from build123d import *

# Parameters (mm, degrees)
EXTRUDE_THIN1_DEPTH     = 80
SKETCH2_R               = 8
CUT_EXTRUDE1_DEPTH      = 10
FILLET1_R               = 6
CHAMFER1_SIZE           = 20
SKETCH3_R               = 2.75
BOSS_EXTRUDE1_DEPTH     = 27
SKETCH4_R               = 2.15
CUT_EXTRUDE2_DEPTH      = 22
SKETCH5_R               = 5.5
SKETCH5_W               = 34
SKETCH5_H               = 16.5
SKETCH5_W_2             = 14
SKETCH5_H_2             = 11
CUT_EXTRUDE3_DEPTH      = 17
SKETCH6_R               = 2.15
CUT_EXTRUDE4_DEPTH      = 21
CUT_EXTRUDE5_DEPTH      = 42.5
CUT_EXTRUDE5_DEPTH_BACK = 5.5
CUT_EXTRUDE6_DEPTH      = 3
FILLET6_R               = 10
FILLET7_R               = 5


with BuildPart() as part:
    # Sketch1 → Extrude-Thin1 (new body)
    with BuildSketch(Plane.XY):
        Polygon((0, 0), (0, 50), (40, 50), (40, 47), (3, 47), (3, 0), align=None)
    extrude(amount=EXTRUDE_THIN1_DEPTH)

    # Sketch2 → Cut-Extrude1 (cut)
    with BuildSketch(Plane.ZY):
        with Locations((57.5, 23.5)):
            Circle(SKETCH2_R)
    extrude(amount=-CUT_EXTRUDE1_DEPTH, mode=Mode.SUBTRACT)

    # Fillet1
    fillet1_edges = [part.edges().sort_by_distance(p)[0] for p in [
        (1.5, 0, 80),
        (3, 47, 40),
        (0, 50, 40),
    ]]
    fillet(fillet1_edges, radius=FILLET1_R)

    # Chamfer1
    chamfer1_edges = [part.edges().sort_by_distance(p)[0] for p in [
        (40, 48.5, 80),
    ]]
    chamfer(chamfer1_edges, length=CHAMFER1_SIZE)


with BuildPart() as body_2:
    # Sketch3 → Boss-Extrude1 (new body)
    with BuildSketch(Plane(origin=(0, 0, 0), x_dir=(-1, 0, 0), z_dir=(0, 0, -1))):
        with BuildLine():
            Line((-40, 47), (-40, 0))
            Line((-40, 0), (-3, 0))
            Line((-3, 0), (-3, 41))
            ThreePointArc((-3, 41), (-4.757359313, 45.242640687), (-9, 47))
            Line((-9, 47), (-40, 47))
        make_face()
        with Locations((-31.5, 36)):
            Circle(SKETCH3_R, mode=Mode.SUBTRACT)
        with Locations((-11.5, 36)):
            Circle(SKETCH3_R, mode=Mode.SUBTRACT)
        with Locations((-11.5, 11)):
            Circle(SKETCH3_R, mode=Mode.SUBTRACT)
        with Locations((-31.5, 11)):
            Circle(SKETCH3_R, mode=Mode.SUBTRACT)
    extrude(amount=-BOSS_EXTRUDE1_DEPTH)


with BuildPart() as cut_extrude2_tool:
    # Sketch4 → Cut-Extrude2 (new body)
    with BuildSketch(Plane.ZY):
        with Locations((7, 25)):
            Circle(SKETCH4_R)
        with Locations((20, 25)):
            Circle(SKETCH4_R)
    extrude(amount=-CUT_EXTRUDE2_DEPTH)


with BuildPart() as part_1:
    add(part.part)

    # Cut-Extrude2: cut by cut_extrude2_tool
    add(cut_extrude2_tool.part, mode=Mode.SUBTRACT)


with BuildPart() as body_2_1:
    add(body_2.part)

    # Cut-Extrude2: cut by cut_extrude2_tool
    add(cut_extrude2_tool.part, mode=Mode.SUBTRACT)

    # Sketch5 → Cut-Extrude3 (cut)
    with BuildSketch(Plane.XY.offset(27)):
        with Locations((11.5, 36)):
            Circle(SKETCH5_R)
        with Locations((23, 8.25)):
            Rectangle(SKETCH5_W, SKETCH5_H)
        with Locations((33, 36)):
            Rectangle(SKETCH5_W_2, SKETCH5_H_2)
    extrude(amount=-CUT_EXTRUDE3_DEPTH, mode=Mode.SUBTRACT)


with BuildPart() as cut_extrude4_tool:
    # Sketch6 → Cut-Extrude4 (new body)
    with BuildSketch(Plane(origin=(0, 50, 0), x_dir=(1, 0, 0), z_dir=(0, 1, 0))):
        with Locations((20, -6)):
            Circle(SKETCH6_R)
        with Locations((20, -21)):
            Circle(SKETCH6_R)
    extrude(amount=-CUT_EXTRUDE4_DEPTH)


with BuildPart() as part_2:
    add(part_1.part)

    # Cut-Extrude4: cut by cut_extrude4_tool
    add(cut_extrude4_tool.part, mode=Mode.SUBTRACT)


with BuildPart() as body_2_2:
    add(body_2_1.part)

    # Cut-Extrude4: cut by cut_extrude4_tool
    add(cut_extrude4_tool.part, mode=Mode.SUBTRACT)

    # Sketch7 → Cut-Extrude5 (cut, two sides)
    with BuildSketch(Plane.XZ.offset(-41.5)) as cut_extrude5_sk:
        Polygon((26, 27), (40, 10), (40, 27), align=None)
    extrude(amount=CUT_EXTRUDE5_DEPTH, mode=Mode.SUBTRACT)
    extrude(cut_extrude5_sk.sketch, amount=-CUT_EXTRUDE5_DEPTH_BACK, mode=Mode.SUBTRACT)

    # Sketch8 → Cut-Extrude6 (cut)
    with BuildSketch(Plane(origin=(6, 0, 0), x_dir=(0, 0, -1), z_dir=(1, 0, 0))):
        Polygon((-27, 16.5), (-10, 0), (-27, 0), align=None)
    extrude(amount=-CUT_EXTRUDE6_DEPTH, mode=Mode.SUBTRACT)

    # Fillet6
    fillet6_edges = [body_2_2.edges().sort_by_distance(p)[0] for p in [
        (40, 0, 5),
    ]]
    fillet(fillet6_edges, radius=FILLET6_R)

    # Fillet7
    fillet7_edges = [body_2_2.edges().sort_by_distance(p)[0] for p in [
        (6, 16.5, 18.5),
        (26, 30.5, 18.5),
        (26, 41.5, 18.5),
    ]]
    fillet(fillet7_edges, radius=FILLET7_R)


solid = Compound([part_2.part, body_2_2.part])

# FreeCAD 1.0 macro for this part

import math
import FreeCAD as App
import Part
import Sketcher
from FreeCAD import Vector
Q = App.Units.Quantity


def edges_at(feature, points):
    """Names of the edges that pass closest to the given points."""
    edges = feature.Shape.Edges
    near = lambda p: min(range(len(edges)), key=lambda i: edges[i].distToShape(Part.Vertex(*p))[0])
    return sorted({f"Edge{near(p) + 1}" for p in points})


def add_polygon(sketch, points):
    """Adds a closed chain of lines whose ends are joined by coincident constraints."""
    first, n = sketch.GeometryCount, len(points)
    for a, b in zip(points, points[1:] + points[:1]):
        sketch.addGeometry(Part.LineSegment(App.Vector(*a, 0), App.Vector(*b, 0)), False)
    for i in range(n):
        sketch.addConstraint(Sketcher.Constraint("Coincident", first + i, 2, first + (i + 1) % n, 1))

doc = App.newDocument("Part")
params = doc.addObject("Spreadsheet::Sheet", "Params")
for row, (alias, value) in enumerate([
    ("sketch1_width", "3 mm"),
    ("sketch1_width2", "37 mm"),
    ("sketch1_height", "50 mm"),
    ("pad1_length", "80 mm"),
    ("sketch2_diameter", "16 mm"),
    ("pocket1_length", "10 mm"),
    ("fillet_radius", "6 mm"),
    ("chamfer_size", "20 mm"),
    ("sketch3_radius", "6 mm"),
    ("sketch3_diameter", "5.5 mm"),
    ("sketch3_width", "37 mm"),
    ("sketch3_height", "47 mm"),
    ("pad2_length", "27 mm"),
    ("sketch4_diameter", "4.3 mm"),
    ("pad3_length", "22 mm"),
    ("sketch5_diameter", "11 mm"),
    ("sketch5_width", "34 mm"),
    ("sketch5_width2", "14 mm"),
    ("sketch5_height", "11 mm"),
    ("sketch5_height2", "16.5 mm"),
    ("pocket2_length", "17 mm"),
    ("sketch6_diameter", "4.3 mm"),
    ("pad4_length", "21 mm"),
    ("sketch7_width", "14 mm"),
    ("sketch7_height", "17 mm"),
    ("sketch8_height", "17 mm"),
    ("sketch8_width", "16.5 mm"),
    ("pocket4_length", "3 mm"),
    ("fillet2_radius", "10 mm"),
    ("fillet3_radius", "5 mm"),
], start=1):
    params.set(f"A{row}", alias)
    params.set(f"B{row}", "=" + value)
    params.setAlias(f"B{row}", alias)

body = doc.addObject("PartDesign::Body", "Body")

sketch1 = body.newObject("Sketcher::SketchObject", "Sketch")
sketch1.AttachmentSupport = (doc.getObject("XY_Plane"), [""])
sketch1.MapMode = "FlatFace"
add_polygon(sketch1, [(0, 50), (0, 0), (3, 0), (3, 47), (40, 47), (40, 50)])
sketch1.addConstraint(Sketcher.Constraint("Vertical", 0))
sketch1.addConstraint(Sketcher.Constraint("Horizontal", 1))
sketch1.addConstraint(Sketcher.Constraint("Vertical", 2))
sketch1.addConstraint(Sketcher.Constraint("Horizontal", 3))
sketch1.addConstraint(Sketcher.Constraint("Vertical", 4))
sketch1.addConstraint(Sketcher.Constraint("Horizontal", 5))
sketch1.addConstraint(Sketcher.Constraint("Coincident", 0, 2, -1, 1))
sketch1.addConstraint(Sketcher.Constraint("Equal", 1, 4))
sketch1.addConstraint(Sketcher.Constraint("DistanceX", 1, 1, 1, 2, Q("3 mm")))
sketch1.addConstraint(Sketcher.Constraint("DistanceX", 3, 1, 3, 2, Q("37 mm")))
sketch1.addConstraint(Sketcher.Constraint("DistanceY", 0, 2, 0, 1, Q("50 mm")))
sketch1.setExpression("Constraints[14]", "Params.sketch1_width")
sketch1.setExpression("Constraints[15]", "Params.sketch1_width2")
sketch1.setExpression("Constraints[16]", "Params.sketch1_height")
pad1 = body.newObject("PartDesign::Pad", "Pad")
pad1.Profile = sketch1
pad1.setExpression("Length", "Params.pad1_length")

sketch2 = body.newObject("Sketcher::SketchObject", "Sketch001")
sketch2.AttachmentSupport = (doc.getObject("YZ_Plane"), [""])
sketch2.MapMode = "FlatFace"
sketch2.addGeometry(Part.Circle(Vector(24, 58, 0), Vector(0, 0, 1), 8), False)
sketch2.addConstraint(Sketcher.Constraint("Diameter", 0, Q("16 mm")))
sketch2.addConstraint(Sketcher.Constraint("DistanceX", -1, 1, 0, 3, Q("23.5 mm")))
sketch2.addConstraint(Sketcher.Constraint("DistanceY", -1, 1, 0, 3, Q("57.5 mm")))
sketch2.setExpression("Constraints[0]", "Params.sketch2_diameter")
pocket1 = body.newObject("PartDesign::Pocket", "Pocket")
pocket1.Profile = sketch2
pocket1.setExpression("Length", "Params.pocket1_length")
pocket1.Reversed = True
doc.recompute()

fillet = body.newObject("PartDesign::Fillet", "Fillet")
fillet.Base = (pocket1, edges_at(pocket1, [(1.5, 0, 80), (3, 47, 40), (0, 50, 40)]))
fillet.setExpression("Radius", "Params.fillet_radius")
doc.recompute()

chamfer = body.newObject("PartDesign::Chamfer", "Chamfer")
chamfer.Base = (fillet, edges_at(fillet, [(40, 48.5, 80)]))
chamfer.setExpression("Size", "Params.chamfer_size")
body2 = doc.addObject("PartDesign::Body", "Body001")

sketch3 = body2.newObject("Sketcher::SketchObject", "Sketch002")
sketch3.AttachmentSupport = (doc.getObject("XY_Plane001"), [""])
sketch3.MapMode = "FlatFace"
sketch3.addGeometry(Part.LineSegment(Vector(40, 47, 0), Vector(40, 0, 0)), False)
sketch3.addGeometry(Part.LineSegment(Vector(40, 0, 0), Vector(3, 0, 0)), False)
sketch3.addGeometry(Part.LineSegment(Vector(3, 0, 0), Vector(3, 41, 0)), False)
sketch3.addGeometry(Part.ArcOfCircle(Part.Circle(Vector(9, 41, 0), Vector(0, 0, 1), 6), math.radians(90), math.radians(180)), False)
sketch3.addGeometry(Part.LineSegment(Vector(9, 47, 0), Vector(40, 47, 0)), False)
sketch3.addGeometry(Part.Circle(Vector(31.5, 11, 0), Vector(0, 0, 1), 2.8), False)
sketch3.addGeometry(Part.Circle(Vector(11.5, 11, 0), Vector(0, 0, 1), 2.8), False)
sketch3.addGeometry(Part.Circle(Vector(31.5, 36, 0), Vector(0, 0, 1), 2.8), False)
sketch3.addGeometry(Part.Circle(Vector(11.5, 36, 0), Vector(0, 0, 1), 2.8), False)
sketch3.addConstraint(Sketcher.Constraint("Coincident", 0, 2, 1, 1))
sketch3.addConstraint(Sketcher.Constraint("Coincident", 1, 2, 2, 1))
sketch3.addConstraint(Sketcher.Constraint("Tangent", 2, 2, 3, 2))
sketch3.addConstraint(Sketcher.Constraint("Tangent", 3, 1, 4, 1))
sketch3.addConstraint(Sketcher.Constraint("Coincident", 4, 2, 0, 1))
sketch3.addConstraint(Sketcher.Constraint("Vertical", 0))
sketch3.addConstraint(Sketcher.Constraint("Horizontal", 1))
sketch3.addConstraint(Sketcher.Constraint("Vertical", 2))
sketch3.addConstraint(Sketcher.Constraint("Horizontal", 4))
sketch3.addConstraint(Sketcher.Constraint("Equal", 5, 6))
sketch3.addConstraint(Sketcher.Constraint("Equal", 6, 7))
sketch3.addConstraint(Sketcher.Constraint("Equal", 7, 8))
sketch3.addConstraint(Sketcher.Constraint("PointOnObject", 0, 2, -1))
sketch3.addConstraint(Sketcher.Constraint("Horizontal", 5, 3, 6, 3))
sketch3.addConstraint(Sketcher.Constraint("Horizontal", 7, 3, 8, 3))
sketch3.addConstraint(Sketcher.Constraint("Vertical", 5, 3, 7, 3))
sketch3.addConstraint(Sketcher.Constraint("Vertical", 6, 3, 8, 3))
sketch3.addConstraint(Sketcher.Constraint("Radius", 3, Q("6 mm")))
sketch3.addConstraint(Sketcher.Constraint("Diameter", 5, Q("5.5 mm")))
sketch3.addConstraint(Sketcher.Constraint("DistanceX", 1, 2, 1, 1, Q("37 mm")))
sketch3.addConstraint(Sketcher.Constraint("DistanceY", 0, 2, 0, 1, Q("47 mm")))
sketch3.addConstraint(Sketcher.Constraint("DistanceX", -1, 1, 3, 3, Q("9 mm")))
sketch3.addConstraint(Sketcher.Constraint("DistanceY", -1, 1, 5, 3, Q("11 mm")))
sketch3.addConstraint(Sketcher.Constraint("DistanceY", -1, 1, 7, 3, Q("36 mm")))
sketch3.addConstraint(Sketcher.Constraint("DistanceX", 6, 3, 5, 3, Q("20 mm")))
sketch3.addConstraint(Sketcher.Constraint("DistanceX", -1, 1, 5, 3, Q("31.5 mm")))
sketch3.setExpression("Constraints[17]", "Params.sketch3_radius")
sketch3.setExpression("Constraints[18]", "Params.sketch3_diameter")
sketch3.setExpression("Constraints[19]", "Params.sketch3_width")
sketch3.setExpression("Constraints[20]", "Params.sketch3_height")
pad2 = body2.newObject("PartDesign::Pad", "Pad001")
pad2.Profile = sketch3
pad2.setExpression("Length", "Params.pad2_length")
body3 = doc.addObject("PartDesign::Body", "Body002")
body3.AllowCompound = True

sketch4 = body3.newObject("Sketcher::SketchObject", "Sketch003")
sketch4.AttachmentSupport = (doc.getObject("YZ_Plane002"), [""])
sketch4.MapMode = "FlatFace"
sketch4.addGeometry(Part.Circle(Vector(25, 7, 0), Vector(0, 0, 1), 2.1), False)
sketch4.addGeometry(Part.Circle(Vector(25, 20, 0), Vector(0, 0, 1), 2.1), False)
sketch4.addConstraint(Sketcher.Constraint("Equal", 0, 1))
sketch4.addConstraint(Sketcher.Constraint("Vertical", 0, 3, 1, 3))
sketch4.addConstraint(Sketcher.Constraint("Diameter", 0, Q("4.3 mm")))
sketch4.addConstraint(Sketcher.Constraint("DistanceX", -1, 1, 0, 3, Q("25 mm")))
sketch4.addConstraint(Sketcher.Constraint("DistanceY", -1, 1, 0, 3, Q("7 mm")))
sketch4.addConstraint(Sketcher.Constraint("DistanceY", -1, 1, 1, 3, Q("20 mm")))
sketch4.setExpression("Constraints[2]", "Params.sketch4_diameter")
pad3 = body3.newObject("PartDesign::Pad", "Pad002")
pad3.Profile = sketch4
pad3.setExpression("Length", "Params.pad3_length")
doc.recompute()

body4 = doc.addObject("PartDesign::Body", "Body003")
body4.BaseFeature = body3
boolean = body.newObject("PartDesign::Boolean", "Boolean")
boolean.Type = "Cut"
boolean.addObjects([body4])
doc.recompute()

boolean2 = body2.newObject("PartDesign::Boolean", "Boolean001")
boolean2.Type = "Cut"
boolean2.addObjects([body3])

sketch5 = body2.newObject("Sketcher::SketchObject", "Sketch004")
sketch5.AttachmentSupport = (doc.getObject("XY_Plane001"), [""])
sketch5.MapMode = "FlatFace"
sketch5.AttachmentOffset = App.Placement(Vector(0, 0, 27), App.Rotation())
sketch5.addGeometry(Part.Circle(Vector(12, 36, 0), Vector(0, 0, 1), 6), False)
add_polygon(sketch5, [(6, 16), (6, 0), (40, 0), (40, 16)])
add_polygon(sketch5, [(26, 42), (26, 30), (40, 30), (40, 42)])
sketch5.addConstraint(Sketcher.Constraint("Vertical", 1))
sketch5.addConstraint(Sketcher.Constraint("Horizontal", 2))
sketch5.addConstraint(Sketcher.Constraint("Vertical", 3))
sketch5.addConstraint(Sketcher.Constraint("Horizontal", 4))
sketch5.addConstraint(Sketcher.Constraint("Vertical", 5))
sketch5.addConstraint(Sketcher.Constraint("Horizontal", 6))
sketch5.addConstraint(Sketcher.Constraint("Vertical", 7))
sketch5.addConstraint(Sketcher.Constraint("Horizontal", 8))
sketch5.addConstraint(Sketcher.Constraint("PointOnObject", 1, 2, -1))
sketch5.addConstraint(Sketcher.Constraint("Vertical", 3, 2, 6, 2))
sketch5.addConstraint(Sketcher.Constraint("Diameter", 0, Q("11 mm")))
sketch5.addConstraint(Sketcher.Constraint("DistanceX", 2, 1, 2, 2, Q("34 mm")))
sketch5.addConstraint(Sketcher.Constraint("DistanceX", 6, 1, 6, 2, Q("14 mm")))
sketch5.addConstraint(Sketcher.Constraint("DistanceY", 5, 2, 5, 1, Q("11 mm")))
sketch5.addConstraint(Sketcher.Constraint("DistanceY", 1, 2, 1, 1, Q("16.5 mm")))
sketch5.addConstraint(Sketcher.Constraint("DistanceY", -1, 1, 0, 3, Q("36 mm")))
sketch5.addConstraint(Sketcher.Constraint("DistanceX", -1, 1, 1, 2, Q("6 mm")))
sketch5.addConstraint(Sketcher.Constraint("DistanceY", 3, 2, 5, 2, Q("14 mm")))
sketch5.addConstraint(Sketcher.Constraint("DistanceX", -1, 1, 0, 3, Q("11.5 mm")))
sketch5.setExpression("Constraints[18]", "Params.sketch5_diameter")
sketch5.setExpression("Constraints[19]", "Params.sketch5_width")
sketch5.setExpression("Constraints[20]", "Params.sketch5_width2")
sketch5.setExpression("Constraints[21]", "Params.sketch5_height")
sketch5.setExpression("Constraints[22]", "Params.sketch5_height2")
pocket2 = body2.newObject("PartDesign::Pocket", "Pocket001")
pocket2.Profile = sketch5
pocket2.setExpression("Length", "Params.pocket2_length")
body5 = doc.addObject("PartDesign::Body", "Body004")
body5.AllowCompound = True

sketch6 = body5.newObject("Sketcher::SketchObject", "Sketch005")
sketch6.AttachmentSupport = (doc.getObject("XZ_Plane004"), [""])
sketch6.MapMode = "FlatFace"
sketch6.AttachmentOffset = App.Placement(Vector(0, 0, -50), App.Rotation())
sketch6.addGeometry(Part.Circle(Vector(20, 6, 0), Vector(0, 0, 1), 2.1), False)
sketch6.addGeometry(Part.Circle(Vector(20, 21, 0), Vector(0, 0, 1), 2.1), False)
sketch6.addConstraint(Sketcher.Constraint("Equal", 0, 1))
sketch6.addConstraint(Sketcher.Constraint("Vertical", 0, 3, 1, 3))
sketch6.addConstraint(Sketcher.Constraint("Diameter", 0, Q("4.3 mm")))
sketch6.addConstraint(Sketcher.Constraint("DistanceX", -1, 1, 0, 3, Q("20 mm")))
sketch6.addConstraint(Sketcher.Constraint("DistanceY", -1, 1, 0, 3, Q("6 mm")))
sketch6.addConstraint(Sketcher.Constraint("DistanceY", -1, 1, 1, 3, Q("21 mm")))
sketch6.setExpression("Constraints[2]", "Params.sketch6_diameter")
pad4 = body5.newObject("PartDesign::Pad", "Pad003")
pad4.Profile = sketch6
pad4.setExpression("Length", "Params.pad4_length")
doc.recompute()

body6 = doc.addObject("PartDesign::Body", "Body005")
body6.BaseFeature = body5
boolean3 = body.newObject("PartDesign::Boolean", "Boolean002")
boolean3.Type = "Cut"
boolean3.addObjects([body6])
doc.recompute()

boolean4 = body2.newObject("PartDesign::Boolean", "Boolean003")
boolean4.Type = "Cut"
boolean4.addObjects([body5])

sketch7 = body2.newObject("Sketcher::SketchObject", "Sketch006")
sketch7.AttachmentSupport = (doc.getObject("XZ_Plane001"), [""])
sketch7.MapMode = "FlatFace"
sketch7.AttachmentOffset = App.Placement(Vector(0, 0, -41.5), App.Rotation())
add_polygon(sketch7, [(26, 27), (40, 10), (40, 27)])
sketch7.addConstraint(Sketcher.Constraint("Vertical", 1))
sketch7.addConstraint(Sketcher.Constraint("Horizontal", 2))
sketch7.addConstraint(Sketcher.Constraint("DistanceX", 2, 2, 2, 1, Q("14 mm")))
sketch7.addConstraint(Sketcher.Constraint("DistanceY", 1, 1, 1, 2, Q("17 mm")))
sketch7.addConstraint(Sketcher.Constraint("DistanceX", -1, 1, 0, 2, Q("40 mm")))
sketch7.addConstraint(Sketcher.Constraint("DistanceY", -1, 1, 0, 2, Q("10 mm")))
sketch7.setExpression("Constraints[5]", "Params.sketch7_width")
sketch7.setExpression("Constraints[6]", "Params.sketch7_height")
pocket3 = body2.newObject("PartDesign::Pocket", "Pocket002")
pocket3.Profile = sketch7
pocket3.Type = "ThroughAll"
pocket3.Midplane = True

sketch8 = body2.newObject("Sketcher::SketchObject", "Sketch007")
sketch8.AttachmentSupport = (doc.getObject("YZ_Plane001"), [""])
sketch8.MapMode = "FlatFace"
sketch8.AttachmentOffset = App.Placement(Vector(0, 0, 6), App.Rotation())
add_polygon(sketch8, [(0, 10), (16, 27), (0, 27)])
sketch8.addConstraint(Sketcher.Constraint("Horizontal", 1))
sketch8.addConstraint(Sketcher.Constraint("Vertical", 2))
sketch8.addConstraint(Sketcher.Constraint("PointOnObject", 1, 2, -2))
sketch8.addConstraint(Sketcher.Constraint("DistanceY", 2, 2, 2, 1, Q("17 mm")))
sketch8.addConstraint(Sketcher.Constraint("DistanceX", 1, 2, 1, 1, Q("16.5 mm")))
sketch8.addConstraint(Sketcher.Constraint("DistanceY", -1, 1, 0, 2, Q("27 mm")))
sketch8.setExpression("Constraints[6]", "Params.sketch8_height")
sketch8.setExpression("Constraints[7]", "Params.sketch8_width")
pocket4 = body2.newObject("PartDesign::Pocket", "Pocket003")
pocket4.Profile = sketch8
pocket4.setExpression("Length", "Params.pocket4_length")
doc.recompute()

fillet2 = body2.newObject("PartDesign::Fillet", "Fillet001")
fillet2.Base = (pocket4, edges_at(pocket4, [(40, 0, 5)]))
fillet2.setExpression("Radius", "Params.fillet2_radius")
doc.recompute()

fillet3 = body2.newObject("PartDesign::Fillet", "Fillet002")
fillet3.Base = (fillet2, edges_at(fillet2, [(6, 16.5, 18.5), (26, 30.5, 18.5), (26, 41.5, 18.5)]))
fillet3.setExpression("Radius", "Params.fillet3_radius")

doc.recompute()
